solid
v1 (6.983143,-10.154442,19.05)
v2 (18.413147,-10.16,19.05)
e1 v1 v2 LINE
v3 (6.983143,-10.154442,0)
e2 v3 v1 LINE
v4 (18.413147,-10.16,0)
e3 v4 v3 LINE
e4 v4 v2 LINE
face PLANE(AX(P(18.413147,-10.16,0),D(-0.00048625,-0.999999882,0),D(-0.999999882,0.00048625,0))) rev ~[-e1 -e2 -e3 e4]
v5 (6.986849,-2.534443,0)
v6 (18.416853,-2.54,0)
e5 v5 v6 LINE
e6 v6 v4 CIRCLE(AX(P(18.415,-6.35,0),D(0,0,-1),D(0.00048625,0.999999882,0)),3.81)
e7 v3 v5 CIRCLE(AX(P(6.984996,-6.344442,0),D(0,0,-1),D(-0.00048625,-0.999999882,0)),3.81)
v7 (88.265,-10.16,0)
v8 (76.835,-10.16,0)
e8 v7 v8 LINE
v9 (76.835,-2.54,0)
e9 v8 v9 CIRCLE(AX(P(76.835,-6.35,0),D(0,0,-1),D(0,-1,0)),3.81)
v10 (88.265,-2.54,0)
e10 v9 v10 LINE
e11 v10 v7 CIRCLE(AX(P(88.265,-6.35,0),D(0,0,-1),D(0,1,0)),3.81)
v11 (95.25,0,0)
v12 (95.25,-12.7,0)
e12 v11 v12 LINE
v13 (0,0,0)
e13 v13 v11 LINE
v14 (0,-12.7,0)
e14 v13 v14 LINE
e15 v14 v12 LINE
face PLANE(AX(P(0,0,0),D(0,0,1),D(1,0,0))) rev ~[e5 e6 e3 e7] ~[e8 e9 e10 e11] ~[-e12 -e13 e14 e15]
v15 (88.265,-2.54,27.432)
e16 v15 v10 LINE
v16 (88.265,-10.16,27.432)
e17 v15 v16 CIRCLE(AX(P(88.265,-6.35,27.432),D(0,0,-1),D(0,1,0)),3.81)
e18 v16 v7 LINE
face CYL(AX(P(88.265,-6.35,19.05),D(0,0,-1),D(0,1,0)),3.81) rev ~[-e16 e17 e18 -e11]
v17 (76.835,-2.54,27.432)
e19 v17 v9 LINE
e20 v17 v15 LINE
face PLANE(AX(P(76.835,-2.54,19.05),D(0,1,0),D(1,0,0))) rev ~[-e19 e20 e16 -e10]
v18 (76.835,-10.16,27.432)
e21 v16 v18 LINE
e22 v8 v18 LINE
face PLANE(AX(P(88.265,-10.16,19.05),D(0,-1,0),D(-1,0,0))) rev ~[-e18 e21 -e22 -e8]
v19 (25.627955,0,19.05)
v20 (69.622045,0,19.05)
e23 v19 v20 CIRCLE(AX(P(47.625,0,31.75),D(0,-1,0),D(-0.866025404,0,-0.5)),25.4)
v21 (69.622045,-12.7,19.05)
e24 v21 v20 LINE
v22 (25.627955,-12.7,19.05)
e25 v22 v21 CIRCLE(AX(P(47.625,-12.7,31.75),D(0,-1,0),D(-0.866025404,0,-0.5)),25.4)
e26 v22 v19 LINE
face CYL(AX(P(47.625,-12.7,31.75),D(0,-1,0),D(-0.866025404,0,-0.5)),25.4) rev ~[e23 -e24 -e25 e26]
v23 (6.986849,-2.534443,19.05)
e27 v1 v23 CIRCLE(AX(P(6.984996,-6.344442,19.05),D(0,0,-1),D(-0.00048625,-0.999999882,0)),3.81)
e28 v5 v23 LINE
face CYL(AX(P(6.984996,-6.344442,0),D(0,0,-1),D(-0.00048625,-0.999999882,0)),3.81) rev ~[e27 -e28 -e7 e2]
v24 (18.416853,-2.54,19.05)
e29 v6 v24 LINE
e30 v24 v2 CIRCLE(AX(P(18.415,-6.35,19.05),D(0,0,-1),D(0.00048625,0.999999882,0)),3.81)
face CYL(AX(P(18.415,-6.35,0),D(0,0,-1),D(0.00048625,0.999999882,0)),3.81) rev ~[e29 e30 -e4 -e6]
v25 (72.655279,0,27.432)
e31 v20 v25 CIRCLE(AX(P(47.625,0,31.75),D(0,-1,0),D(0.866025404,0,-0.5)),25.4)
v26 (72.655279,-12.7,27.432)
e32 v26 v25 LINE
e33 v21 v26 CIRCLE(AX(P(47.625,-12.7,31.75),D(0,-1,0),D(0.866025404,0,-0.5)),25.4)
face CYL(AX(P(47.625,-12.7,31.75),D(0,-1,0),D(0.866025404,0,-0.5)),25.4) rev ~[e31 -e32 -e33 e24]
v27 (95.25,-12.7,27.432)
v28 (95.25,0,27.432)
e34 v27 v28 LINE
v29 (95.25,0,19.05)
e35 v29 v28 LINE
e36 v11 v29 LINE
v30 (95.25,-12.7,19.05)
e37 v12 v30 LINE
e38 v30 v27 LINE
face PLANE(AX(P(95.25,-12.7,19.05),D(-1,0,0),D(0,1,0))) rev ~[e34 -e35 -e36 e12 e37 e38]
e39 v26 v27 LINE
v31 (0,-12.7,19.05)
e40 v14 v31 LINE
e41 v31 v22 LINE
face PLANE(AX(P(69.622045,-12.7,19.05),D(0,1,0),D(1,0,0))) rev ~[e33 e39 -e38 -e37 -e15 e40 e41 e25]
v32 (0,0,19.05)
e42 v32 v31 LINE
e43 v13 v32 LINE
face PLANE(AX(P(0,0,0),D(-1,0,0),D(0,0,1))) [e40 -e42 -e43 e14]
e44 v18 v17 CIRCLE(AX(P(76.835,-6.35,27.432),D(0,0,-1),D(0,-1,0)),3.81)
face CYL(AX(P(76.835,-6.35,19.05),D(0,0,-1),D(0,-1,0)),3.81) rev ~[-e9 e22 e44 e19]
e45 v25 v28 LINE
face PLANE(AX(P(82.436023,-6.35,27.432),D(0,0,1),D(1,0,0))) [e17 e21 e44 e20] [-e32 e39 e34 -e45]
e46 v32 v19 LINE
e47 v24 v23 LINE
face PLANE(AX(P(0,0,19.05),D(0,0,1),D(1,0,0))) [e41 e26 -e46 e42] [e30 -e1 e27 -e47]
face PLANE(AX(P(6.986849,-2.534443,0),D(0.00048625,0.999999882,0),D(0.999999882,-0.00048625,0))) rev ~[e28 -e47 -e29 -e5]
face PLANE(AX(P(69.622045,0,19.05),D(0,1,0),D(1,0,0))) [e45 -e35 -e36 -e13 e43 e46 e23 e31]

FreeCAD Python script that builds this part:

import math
import FreeCAD as App
import Part
import Sketcher
from FreeCAD import Vector
Q = App.Units.Quantity

doc = App.newDocument("Part")
body = doc.addObject("PartDesign::Body", "Body")

# Sketch on XZ plane
sketch1 = body.newObject("Sketcher::SketchObject", "Sketch")
sketch1.AttachmentSupport = (doc.getObject("XZ_Plane"), [""])
sketch1.MapMode = "FlatFace"
sketch1.addGeometry([
    Part.LineSegment(Vector(0, 19, 0), Vector(0, 0, 0)),
    Part.LineSegment(Vector(0, 0, 0), Vector(95, 0, 0)),
    Part.LineSegment(Vector(95, 0, 0), Vector(95, 19, 0)),
    Part.LineSegment(Vector(95, 19, 0), Vector(0, 19, 0)),
], False)
sketch1.addConstraint([
    Sketcher.Constraint("Coincident", 0, 2, 1, 1),
    Sketcher.Constraint("Coincident", 1, 2, 2, 1),
    Sketcher.Constraint("Coincident", 2, 2, 3, 1),
    Sketcher.Constraint("Coincident", 3, 2, 0, 1),
    Sketcher.Constraint("Vertical", 0),
    Sketcher.Constraint("Horizontal", 1),
    Sketcher.Constraint("Vertical", 2),
    Sketcher.Constraint("Horizontal", 3),
    Sketcher.Constraint("Coincident", 0, 2, -1, 1),
    Sketcher.Constraint("DistanceX", 1, 1, 1, 2, Q("3.75 in")),
    Sketcher.Constraint("DistanceY", 0, 2, 0, 1, Q("0.75 in")),
])
pad1 = body.newObject("PartDesign::Pad", "Pad")
pad1.Profile = sketch1
pad1.Length = Q("0.5 in")

# Sketch on XY plane
sketch2 = body.newObject("Sketcher::SketchObject", "Sketch001")
sketch2.AttachmentSupport = (doc.getObject("XY_Plane"), [""])
sketch2.MapMode = "FlatFace"
sketch2.addGeometry([
    Part.LineSegment(Vector(18.4, -10.2, 0), Vector(7, -10.2, 0)),  # 0
    Part.ArcOfCircle(Part.Circle(Vector(7, -6.3, 0), Vector(0, 0, 1), 3.8), math.radians(90), math.radians(270)),  # 1
    Part.LineSegment(Vector(7, -2.5, 0), Vector(18.4, -2.5, 0)),  # 2
    Part.ArcOfCircle(Part.Circle(Vector(18.4, -6.3, 0), Vector(0, 0, 1), 3.8), math.radians(-90), math.radians(90)),  # 3
    Part.LineSegment(Vector(76.8, -2.5, 0), Vector(88.3, -2.5, 0)),  # 4
    Part.ArcOfCircle(Part.Circle(Vector(88.3, -6.3, 0), Vector(0, 0, 1), 3.8), math.radians(-90), math.radians(90)),  # 5
    Part.LineSegment(Vector(88.3, -10.2, 0), Vector(76.8, -10.2, 0)),  # 6
    Part.ArcOfCircle(Part.Circle(Vector(76.8, -6.3, 0), Vector(0, 0, 1), 3.8), math.radians(90), math.radians(270)),  # 7
], False)
sketch2.addConstraint([
    Sketcher.Constraint("Tangent", 0, 2, 1, 2),
    Sketcher.Constraint("Tangent", 1, 1, 2, 1),
    Sketcher.Constraint("Tangent", 2, 2, 3, 2),
    Sketcher.Constraint("Tangent", 3, 1, 0, 1),
    Sketcher.Constraint("Tangent", 4, 2, 5, 2),
    Sketcher.Constraint("Tangent", 5, 1, 6, 1),
    Sketcher.Constraint("Tangent", 6, 2, 7, 2),
    Sketcher.Constraint("Tangent", 7, 1, 4, 1),
    Sketcher.Constraint("Horizontal", 4),
    Sketcher.Constraint("Horizontal", 6),
    Sketcher.Constraint("Equal", 1, 3),
    Sketcher.Constraint("Equal", 3, 5),
    Sketcher.Constraint("Horizontal", 3, 3, 5, 3),
    Sketcher.Constraint("Radius", 1, Q("0.15 in")),
    Sketcher.Constraint("DistanceX", 4, 1, 4, 2, Q("0.45 in")),
    Sketcher.Constraint("DistanceY", 2, 2, -1, 1, Q("0.1 in")),
    Sketcher.Constraint("DistanceX", 1, 3, 5, 3, Q("3.2000002 in")),
    Sketcher.Constraint("DistanceX", 3, 3, 7, 3, Q("2.3 in")),
    Sketcher.Constraint("DistanceX", -1, 1, 1, 3, Q("0.2749998 in")),
    Sketcher.Constraint("DistanceX", 1, 1, 3, 1, 11.426299),
])
pocket1 = body.newObject("PartDesign::Pocket", "Pocket")
pocket1.Profile = sketch2
pocket1.Type = "ThroughAll"
pocket1.Reversed = True

# Sketch on XY plane
sketch3 = body.newObject("Sketcher::SketchObject", "Sketch002")
sketch3.AttachmentSupport = (doc.getObject("XY_Plane"), [""])
sketch3.MapMode = "FlatFace"
sketch3.AttachmentOffset = App.Placement(Vector(0, 0, 0.75 * 25.4), App.Rotation())
sketch3.addGeometry([
    Part.LineSegment(Vector(69.6, 0, 0), Vector(69.6, -12.7, 0)),  # 0
    Part.LineSegment(Vector(69.6, -12.7, 0), Vector(95.2, -12.7, 0)),  # 1
    Part.LineSegment(Vector(95.2, -12.7, 0), Vector(95.2, 0, 0)),  # 2
    Part.LineSegment(Vector(95.2, 0, 0), Vector(69.6, 0, 0)),  # 3
    Part.LineSegment(Vector(88.3, -10.2, 0), Vector(76.8, -10.2, 0)),  # 4
    Part.ArcOfCircle(Part.Circle(Vector(76.8, -6.3, 0), Vector(0, 0, 1), 3.8), math.radians(90), math.radians(270)),  # 5
    Part.LineSegment(Vector(76.8, -2.5, 0), Vector(88.3, -2.5, 0)),  # 6
    Part.ArcOfCircle(Part.Circle(Vector(88.3, -6.3, 0), Vector(0, 0, 1), 3.8), math.radians(-90), math.radians(90)),  # 7
], False)
sketch3.addConstraint([
    Sketcher.Constraint("Coincident", 0, 2, 1, 1),
    Sketcher.Constraint("Coincident", 1, 2, 2, 1),
    Sketcher.Constraint("Coincident", 2, 2, 3, 1),
    Sketcher.Constraint("Coincident", 3, 2, 0, 1),
    Sketcher.Constraint("Tangent", 4, 2, 5, 2),
    Sketcher.Constraint("Tangent", 5, 1, 6, 1),
    Sketcher.Constraint("Tangent", 6, 2, 7, 2),
    Sketcher.Constraint("Tangent", 7, 1, 4, 1),
    Sketcher.Constraint("Vertical", 0),
    Sketcher.Constraint("Horizontal", 1),
    Sketcher.Constraint("Vertical", 2),
    Sketcher.Constraint("Horizontal", 3),
    Sketcher.Constraint("Horizontal", 4),
    Sketcher.Constraint("Horizontal", 6),
    Sketcher.Constraint("PointOnObject", 2, 2, -1),
    Sketcher.Constraint("Radius", 5, Q("0.15 in")),
    Sketcher.Constraint("DistanceY", 0, 2, 0, 1, Q("0.5 in")),
    Sketcher.Constraint("DistanceX", 4, 2, 4, 1, Q("0.45 in")),
    Sketcher.Constraint("DistanceY", 4, 2, -1, 1, Q("0.4 in")),
    Sketcher.Constraint("DistanceX", -1, 1, 1, 2, Q("3.75 in")),
    Sketcher.Constraint("DistanceX", -1, 1, 5, 3, Q("3.025 in")),
    Sketcher.Constraint("DistanceX", 1, 1, 1, 2, 25.627955),
])
pad2 = body.newObject("PartDesign::Pad", "Pad001")
pad2.Profile = sketch3
pad2.Length = Q("0.33 in")

# Sketch on XZ plane
sketch4 = body.newObject("Sketcher::SketchObject", "Sketch003")
sketch4.AttachmentSupport = (doc.getObject("XZ_Plane"), [""])
sketch4.MapMode = "FlatFace"
sketch4.AttachmentOffset = App.Placement(Vector(0, 0, 0.5 * 25.4), App.Rotation())
sketch4.addGeometry([
    Part.ArcOfCircle(Part.Circle(Vector(47.6, 31.8, 0), Vector(0, 0, 1), 25.4), math.radians(-150), math.radians(-30)),  # 0
    Part.LineSegment(Vector(69.6, 19.1, 0), Vector(25.6, 19.1, 0)),  # 1
    Part.LineSegment(Vector(69.6, 27.4, 0), Vector(69.6, 19.1, 0)),  # 2
    Part.ArcOfCircle(Part.Circle(Vector(47.6, 31.7, 0), Vector(0, 0, 1), 25.4), math.radians(-30), math.radians(-10)),  # 3
    Part.LineSegment(Vector(72.7, 27.4, 0), Vector(69.6, 27.4, 0)),  # 4
], False)
sketch4.addConstraint([
    Sketcher.Constraint("Coincident", 0, 1, 1, 2),
    Sketcher.Constraint("Coincident", 1, 1, 0, 2),
    Sketcher.Constraint("Coincident", 2, 2, 3, 1),
    Sketcher.Constraint("Coincident", 3, 2, 4, 1),
    Sketcher.Constraint("Coincident", 4, 2, 2, 1),
    Sketcher.Constraint("Horizontal", 1),
    Sketcher.Constraint("Vertical", 2),
    Sketcher.Constraint("Horizontal", 4),
    Sketcher.Constraint("Coincident", 3, 3, 0, 3),
    Sketcher.Constraint("Coincident", 2, 2, 1, 1),
    Sketcher.Constraint("Radius", 0, Q("1 in")),
    Sketcher.Constraint("DistanceY", 2, 2, 2, 1, Q("0.33 in")),
    Sketcher.Constraint("DistanceY", 0, 1, 0, 3, Q("0.5 in")),
    Sketcher.Constraint("DistanceY", -1, 1, 0, 3, Q("1.25 in")),
    Sketcher.Constraint("DistanceX", -1, 1, 0, 3, Q("1.875 in")),
])
pocket2 = body.newObject("PartDesign::Pocket", "Pocket001")
pocket2.Profile = sketch4
pocket2.Type = "ThroughAll"

doc.recompute()
